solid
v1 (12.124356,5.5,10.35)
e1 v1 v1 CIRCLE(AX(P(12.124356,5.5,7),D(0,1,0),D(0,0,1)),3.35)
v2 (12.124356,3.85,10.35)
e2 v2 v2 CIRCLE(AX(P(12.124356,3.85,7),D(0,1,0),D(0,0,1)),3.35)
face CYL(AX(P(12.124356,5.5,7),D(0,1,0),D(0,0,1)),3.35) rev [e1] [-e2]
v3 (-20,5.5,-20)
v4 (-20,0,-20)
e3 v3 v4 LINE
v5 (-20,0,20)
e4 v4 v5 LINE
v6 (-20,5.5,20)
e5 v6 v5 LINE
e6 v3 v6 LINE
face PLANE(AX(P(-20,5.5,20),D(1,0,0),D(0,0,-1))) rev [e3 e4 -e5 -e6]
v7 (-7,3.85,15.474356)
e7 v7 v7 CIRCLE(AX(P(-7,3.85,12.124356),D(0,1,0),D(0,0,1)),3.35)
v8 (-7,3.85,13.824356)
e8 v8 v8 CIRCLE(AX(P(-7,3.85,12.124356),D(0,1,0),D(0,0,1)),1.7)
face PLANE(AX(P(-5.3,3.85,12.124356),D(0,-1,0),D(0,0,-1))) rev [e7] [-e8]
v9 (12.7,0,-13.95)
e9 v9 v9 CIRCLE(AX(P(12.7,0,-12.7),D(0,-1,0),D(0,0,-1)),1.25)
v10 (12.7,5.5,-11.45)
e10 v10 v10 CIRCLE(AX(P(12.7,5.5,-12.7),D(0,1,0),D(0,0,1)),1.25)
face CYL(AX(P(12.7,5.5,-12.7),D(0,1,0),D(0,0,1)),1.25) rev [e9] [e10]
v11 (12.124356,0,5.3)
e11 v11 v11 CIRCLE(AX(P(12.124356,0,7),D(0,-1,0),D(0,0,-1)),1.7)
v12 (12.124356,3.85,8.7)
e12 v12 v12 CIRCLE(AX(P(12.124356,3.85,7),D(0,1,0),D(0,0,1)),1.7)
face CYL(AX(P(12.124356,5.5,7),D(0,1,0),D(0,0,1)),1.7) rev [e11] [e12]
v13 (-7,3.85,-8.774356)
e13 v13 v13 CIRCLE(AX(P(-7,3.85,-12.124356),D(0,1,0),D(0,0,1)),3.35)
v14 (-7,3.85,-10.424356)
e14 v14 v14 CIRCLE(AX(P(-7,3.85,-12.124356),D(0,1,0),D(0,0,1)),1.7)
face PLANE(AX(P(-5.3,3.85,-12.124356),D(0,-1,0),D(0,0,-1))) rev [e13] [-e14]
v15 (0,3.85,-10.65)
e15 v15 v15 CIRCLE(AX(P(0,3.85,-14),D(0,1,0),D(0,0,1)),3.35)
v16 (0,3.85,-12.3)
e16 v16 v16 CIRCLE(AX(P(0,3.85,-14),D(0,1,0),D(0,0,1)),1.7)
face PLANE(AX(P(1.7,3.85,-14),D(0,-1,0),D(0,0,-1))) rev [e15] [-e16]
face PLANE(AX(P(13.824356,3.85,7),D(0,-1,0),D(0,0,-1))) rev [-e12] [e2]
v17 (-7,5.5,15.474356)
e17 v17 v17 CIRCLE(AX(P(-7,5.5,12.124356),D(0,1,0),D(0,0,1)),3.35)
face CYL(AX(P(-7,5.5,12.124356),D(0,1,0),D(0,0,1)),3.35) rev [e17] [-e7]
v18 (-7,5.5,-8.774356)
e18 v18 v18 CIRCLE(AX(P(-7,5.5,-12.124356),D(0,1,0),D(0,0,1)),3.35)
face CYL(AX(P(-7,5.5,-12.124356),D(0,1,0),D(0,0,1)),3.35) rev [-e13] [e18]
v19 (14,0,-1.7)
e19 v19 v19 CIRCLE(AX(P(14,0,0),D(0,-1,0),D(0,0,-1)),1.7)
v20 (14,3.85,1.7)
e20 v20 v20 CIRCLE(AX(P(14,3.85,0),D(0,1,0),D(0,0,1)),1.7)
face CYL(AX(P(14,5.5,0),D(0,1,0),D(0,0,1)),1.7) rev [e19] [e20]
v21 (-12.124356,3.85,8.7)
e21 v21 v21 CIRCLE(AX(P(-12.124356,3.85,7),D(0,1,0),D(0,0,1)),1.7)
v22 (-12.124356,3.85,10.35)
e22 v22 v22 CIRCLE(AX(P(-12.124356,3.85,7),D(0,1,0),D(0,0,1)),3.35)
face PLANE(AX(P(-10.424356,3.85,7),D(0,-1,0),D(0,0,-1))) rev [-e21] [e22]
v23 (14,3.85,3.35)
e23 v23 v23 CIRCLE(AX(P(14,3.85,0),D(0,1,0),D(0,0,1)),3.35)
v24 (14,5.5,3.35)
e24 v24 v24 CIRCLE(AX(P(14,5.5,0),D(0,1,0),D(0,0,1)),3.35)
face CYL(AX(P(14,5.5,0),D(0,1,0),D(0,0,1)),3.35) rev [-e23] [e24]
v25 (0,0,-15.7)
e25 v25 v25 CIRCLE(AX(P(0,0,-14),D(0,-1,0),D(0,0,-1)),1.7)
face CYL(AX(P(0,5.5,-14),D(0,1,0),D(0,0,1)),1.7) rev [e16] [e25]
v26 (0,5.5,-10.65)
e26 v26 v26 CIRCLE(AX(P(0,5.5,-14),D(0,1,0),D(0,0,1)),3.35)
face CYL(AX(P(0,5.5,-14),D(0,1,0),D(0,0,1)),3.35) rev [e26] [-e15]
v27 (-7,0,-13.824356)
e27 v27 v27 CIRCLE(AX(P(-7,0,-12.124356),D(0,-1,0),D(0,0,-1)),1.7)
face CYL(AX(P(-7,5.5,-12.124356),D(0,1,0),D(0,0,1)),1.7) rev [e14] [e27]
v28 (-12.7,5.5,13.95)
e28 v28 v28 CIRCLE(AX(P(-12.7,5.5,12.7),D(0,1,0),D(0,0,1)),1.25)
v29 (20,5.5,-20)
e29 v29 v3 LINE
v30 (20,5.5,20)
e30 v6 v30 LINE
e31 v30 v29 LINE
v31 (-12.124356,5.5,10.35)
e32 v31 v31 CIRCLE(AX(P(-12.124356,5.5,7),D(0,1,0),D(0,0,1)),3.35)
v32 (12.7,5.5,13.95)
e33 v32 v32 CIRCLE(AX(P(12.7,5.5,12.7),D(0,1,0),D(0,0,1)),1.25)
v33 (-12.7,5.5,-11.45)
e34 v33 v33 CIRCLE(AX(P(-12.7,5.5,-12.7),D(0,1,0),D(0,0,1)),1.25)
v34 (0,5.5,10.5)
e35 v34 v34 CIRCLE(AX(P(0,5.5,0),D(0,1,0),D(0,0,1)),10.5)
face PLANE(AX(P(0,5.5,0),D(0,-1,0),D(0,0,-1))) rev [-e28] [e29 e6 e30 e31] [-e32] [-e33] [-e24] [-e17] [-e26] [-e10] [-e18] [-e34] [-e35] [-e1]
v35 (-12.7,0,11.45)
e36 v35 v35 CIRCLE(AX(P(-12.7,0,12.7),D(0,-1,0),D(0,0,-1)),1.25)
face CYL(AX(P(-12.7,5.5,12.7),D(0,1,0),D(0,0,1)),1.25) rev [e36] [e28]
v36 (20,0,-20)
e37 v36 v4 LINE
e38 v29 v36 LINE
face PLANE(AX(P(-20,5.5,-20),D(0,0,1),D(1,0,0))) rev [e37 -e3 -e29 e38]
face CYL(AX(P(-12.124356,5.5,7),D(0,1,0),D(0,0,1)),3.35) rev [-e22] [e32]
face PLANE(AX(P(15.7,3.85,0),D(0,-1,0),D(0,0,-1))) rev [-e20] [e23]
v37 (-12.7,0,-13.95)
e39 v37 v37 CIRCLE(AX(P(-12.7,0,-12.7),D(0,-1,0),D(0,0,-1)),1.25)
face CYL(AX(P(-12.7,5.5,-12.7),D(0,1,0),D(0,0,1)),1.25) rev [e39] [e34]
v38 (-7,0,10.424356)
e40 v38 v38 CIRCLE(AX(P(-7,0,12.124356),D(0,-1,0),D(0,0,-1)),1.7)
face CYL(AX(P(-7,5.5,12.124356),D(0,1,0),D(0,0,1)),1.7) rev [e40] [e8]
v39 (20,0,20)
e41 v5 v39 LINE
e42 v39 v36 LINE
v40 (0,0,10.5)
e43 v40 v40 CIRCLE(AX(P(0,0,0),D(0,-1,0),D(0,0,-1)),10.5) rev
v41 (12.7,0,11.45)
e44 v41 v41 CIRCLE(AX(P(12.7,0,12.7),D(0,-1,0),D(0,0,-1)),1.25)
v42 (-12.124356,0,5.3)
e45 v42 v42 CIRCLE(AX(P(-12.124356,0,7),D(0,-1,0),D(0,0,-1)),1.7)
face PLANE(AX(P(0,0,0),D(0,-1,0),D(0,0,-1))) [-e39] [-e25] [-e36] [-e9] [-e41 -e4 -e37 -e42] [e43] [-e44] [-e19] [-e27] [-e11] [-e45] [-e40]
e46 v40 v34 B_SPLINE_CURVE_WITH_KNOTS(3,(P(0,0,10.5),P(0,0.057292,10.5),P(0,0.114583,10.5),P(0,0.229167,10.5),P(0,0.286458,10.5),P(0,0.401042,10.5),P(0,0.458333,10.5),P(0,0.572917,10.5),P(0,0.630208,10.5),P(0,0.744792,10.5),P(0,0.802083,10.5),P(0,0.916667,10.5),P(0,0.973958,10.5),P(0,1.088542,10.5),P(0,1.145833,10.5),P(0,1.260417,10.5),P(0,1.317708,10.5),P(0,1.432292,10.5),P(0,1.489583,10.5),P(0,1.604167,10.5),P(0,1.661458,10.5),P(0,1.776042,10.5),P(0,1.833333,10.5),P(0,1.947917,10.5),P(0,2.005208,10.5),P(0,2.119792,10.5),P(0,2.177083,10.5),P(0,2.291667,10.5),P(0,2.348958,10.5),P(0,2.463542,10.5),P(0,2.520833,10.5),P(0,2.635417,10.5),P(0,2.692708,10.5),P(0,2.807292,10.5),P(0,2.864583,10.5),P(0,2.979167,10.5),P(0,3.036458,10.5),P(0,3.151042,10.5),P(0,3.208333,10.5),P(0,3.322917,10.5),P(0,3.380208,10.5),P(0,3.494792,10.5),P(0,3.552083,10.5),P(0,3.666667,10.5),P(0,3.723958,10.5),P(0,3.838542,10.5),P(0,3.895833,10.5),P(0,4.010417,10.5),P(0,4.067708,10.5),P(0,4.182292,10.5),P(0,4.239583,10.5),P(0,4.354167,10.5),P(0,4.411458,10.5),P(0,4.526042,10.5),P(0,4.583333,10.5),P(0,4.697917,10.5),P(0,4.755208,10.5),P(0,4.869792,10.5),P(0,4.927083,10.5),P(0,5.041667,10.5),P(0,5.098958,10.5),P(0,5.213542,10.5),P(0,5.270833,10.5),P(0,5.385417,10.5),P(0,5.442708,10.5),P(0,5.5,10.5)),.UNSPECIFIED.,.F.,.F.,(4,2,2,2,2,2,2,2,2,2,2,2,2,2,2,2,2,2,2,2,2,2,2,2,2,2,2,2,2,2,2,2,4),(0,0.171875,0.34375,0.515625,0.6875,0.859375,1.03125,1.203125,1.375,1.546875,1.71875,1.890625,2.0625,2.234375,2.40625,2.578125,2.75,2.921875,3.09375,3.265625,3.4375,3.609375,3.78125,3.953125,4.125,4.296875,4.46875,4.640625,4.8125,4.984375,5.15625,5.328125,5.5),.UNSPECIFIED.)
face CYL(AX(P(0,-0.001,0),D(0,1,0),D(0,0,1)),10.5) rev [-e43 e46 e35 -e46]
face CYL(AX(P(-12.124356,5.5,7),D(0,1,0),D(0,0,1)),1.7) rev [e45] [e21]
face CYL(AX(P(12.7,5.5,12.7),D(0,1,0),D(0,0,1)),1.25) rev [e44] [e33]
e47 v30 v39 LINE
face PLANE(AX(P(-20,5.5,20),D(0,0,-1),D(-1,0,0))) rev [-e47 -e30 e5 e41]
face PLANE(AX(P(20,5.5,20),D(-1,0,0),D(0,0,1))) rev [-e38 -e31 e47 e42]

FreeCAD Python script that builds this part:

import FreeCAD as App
import Part
import Sketcher

V = App.Vector
Q = App.Units.Quantity


def add_polygon(sketch, points):
    """Adds a closed chain of lines whose ends are joined by coincident constraints."""
    first, n = sketch.GeometryCount, len(points)
    for a, b in zip(points, points[1:] + points[:1]):
        sketch.addGeometry(Part.LineSegment(App.Vector(*a, 0), App.Vector(*b, 0)), False)
    for i in range(n):
        sketch.addConstraint(Sketcher.Constraint("Coincident", first + i, 2, first + (i + 1) % n, 1))

doc = App.newDocument("Part")
params = doc.addObject("Spreadsheet::Sheet", "Params")
for row, (alias, value) in enumerate([
    ("sketch1_width", "40 mm"),
    ("pad1_length", "5.5 mm"),
    ("sketch2_diameter", "21 mm"),
    ("sketch3_diameter", "2.5 mm"),
    ("hole_diameter", "2.5 mm"),
    ("hole_depth", "15.24 mm"),
    ("sketch4_width", "1.65 mm"),
    ("sketch4_width2", "13.59 mm"),
    ("sketch4_height", "3.35 mm"),
    ("groove_angle", "360 deg"),
    ("linearpattern_pitch", "7.246933 mm"),
    ("sketch5_width", "3.35 mm"),
    ("sketch5_width2", "1.65 mm"),
    ("sketch5_height", "13.59 mm"),
    ("groove2_angle", "360 deg"),
    ("sketch6_width", "3.35 mm"),
    ("sketch6_width2", "1.65 mm"),
    ("sketch6_height", "13.59 mm"),
    ("groove3_angle", "360 deg"),
], start=1):
    params.set(f"A{row}", alias)
    params.set(f"B{row}", "=" + value)
    params.setAlias(f"B{row}", alias)

body = doc.addObject("PartDesign::Body", "Body")

# Sketch on XZ plane
sketch1 = body.newObject("Sketcher::SketchObject", "Sketch")
sketch1.AttachmentSupport = (doc.getObject("XZ_Plane"), [""])
sketch1.MapMode = "FlatFace"
add_polygon(sketch1, [(-20, -20), (-20, 20), (20, 20), (20, -20)])  # lines 0-3
sketch1.addConstraint([
    Sketcher.Constraint("Vertical", 0),
    Sketcher.Constraint("Horizontal", 1),
    Sketcher.Constraint("Vertical", 2),
    Sketcher.Constraint("Horizontal", 3),
    Sketcher.Constraint("Symmetric", 0, 2, 2, 2, -1, 1),
    Sketcher.Constraint("Equal", 3, 0),
    Sketcher.Constraint("DistanceX", 1, 1, 1, 2, Q("40 mm")),
])
sketch1.setExpression("Constraints[10]", "Params.sketch1_width")
pad1 = body.newObject("PartDesign::Pad", "Pad")
pad1.Profile = sketch1
pad1.setExpression("Length", "Params.pad1_length")
pad1.Reversed = True

# Sketch on XZ plane
sketch2 = body.newObject("Sketcher::SketchObject", "Sketch001")
sketch2.AttachmentSupport = (doc.getObject("XZ_Plane"), [""])
sketch2.MapMode = "FlatFace"
sketch2.AttachmentOffset = App.Placement(V(0, 0, -5.5), App.Rotation())
sketch2.addGeometry(Part.Circle(V(0, 0, 0), V(0, 0, 1), 10), False)
sketch2.addConstraint([
    Sketcher.Constraint("Coincident", 0, 3, -1, 1),
    Sketcher.Constraint("Diameter", 0, Q("21 mm")),
])
sketch2.setExpression("Constraints[1]", "Params.sketch2_diameter")
pocket1 = body.newObject("PartDesign::Pocket", "Pocket")
pocket1.Profile = sketch2
pocket1.Type = "UpToFirst"
pocket1.Reversed = True

# Sketch on XZ plane
sketch3 = body.newObject("Sketcher::SketchObject", "Sketch002")
sketch3.AttachmentSupport = (doc.getObject("XZ_Plane"), [""])
sketch3.MapMode = "FlatFace"
sketch3.AttachmentOffset = App.Placement(V(0, 0, -5.5), App.Rotation())
sketch3.addGeometry([
    Part.Circle(V(-12.7, 12.7, 0), V(0, 0, 1), 1.2),
    Part.Circle(V(-12.7, -12.7, 0), V(0, 0, 1), 1.2),
    Part.Circle(V(12.7, -12.7, 0), V(0, 0, 1), 1.2),
    Part.Circle(V(12.7, 12.7, 0), V(0, 0, 1), 1.2),
], False)
sketch3.addConstraint([
    Sketcher.Constraint("Equal", 0, 1),
    Sketcher.Constraint("Equal", 1, 2),
    Sketcher.Constraint("Equal", 2, 3),
    Sketcher.Constraint("Symmetric", 0, 3, 2, 3, -1, 1),
    Sketcher.Constraint("Symmetric", 1, 3, 3, 3, -1, 1),
    Sketcher.Constraint("Symmetric", 1, 3, 2, 3, -2),
    Sketcher.Constraint("Diameter", 0, Q("2.5 mm")),
    Sketcher.Constraint("DistanceX", 0, 3, -1, 1, Q("12.7 mm")),
    Sketcher.Constraint("DistanceY", -1, 1, 0, 3, Q("12.7 mm")),
])
sketch3.setExpression("Constraints[6]", "Params.sketch3_diameter")
doc.recompute()
hole = body.newObject("PartDesign::Hole", "Hole")
hole.Profile = sketch3
hole.ThreadType = "None"
hole.setExpression("Diameter", "Params.hole_diameter")
hole.DepthType = "Dimension"
hole.setExpression("Depth", "Params.hole_depth")
hole.DrillPoint = "Angled"
hole.DrillPointAngle = 118
hole.Reversed = True

# Sketch on YZ plane
sketch4 = body.newObject("Sketcher::SketchObject", "Sketch003")
sketch4.AttachmentSupport = (doc.getObject("YZ_Plane"), [""])
sketch4.MapMode = "FlatFace"
sketch4.AttachmentOffset = App.Placement(V(0, 0, -12.124356), App.Rotation())
add_polygon(sketch4, [(-10.8, 7), (5.5, 7), (5.5, 10.3), (3.9, 10.3), (3.9, 8.7), (-9.7, 8.7)])  # lines 0-5
sketch4.addGeometry(Part.LineSegment(V(5.5, 7, 0), V(-10.8, 7, 0)), True)  # axis
sketch4.addConstraint([
    Sketcher.Constraint("Horizontal", 0),
    Sketcher.Constraint("Vertical", 1),
    Sketcher.Constraint("Horizontal", 2),
    Sketcher.Constraint("Vertical", 3),
    Sketcher.Constraint("Horizontal", 4),
    Sketcher.Constraint("Horizontal", 6),
    Sketcher.Constraint("Coincident", 6, 1, 0, 2),
    Sketcher.Constraint("Equal", 0, 6),
    Sketcher.Constraint("Equal", 2, 3),
    Sketcher.Constraint("Angle", 5, Q("-121 deg")),
    Sketcher.Constraint("DistanceY", -1, 1, 0, 2, Q("7 mm")),
    Sketcher.Constraint("DistanceX", 2, 2, 2, 1, Q("1.65 mm")),
    Sketcher.Constraint("DistanceX", 4, 2, 4, 1, Q("13.59 mm")),
    Sketcher.Constraint("DistanceY", 1, 1, 1, 2, Q("3.35 mm")),
    Sketcher.Constraint("DistanceX", -1, 1, 0, 2, Q("5.5 mm")),
])
sketch4.setExpression("Constraints[17]", "Params.sketch4_width")
sketch4.setExpression("Constraints[18]", "Params.sketch4_width2")
sketch4.setExpression("Constraints[19]", "Params.sketch4_height")
groove = body.newObject("PartDesign::Groove", "Groove")
groove.Profile = sketch4
groove.ReferenceAxis = (sketch4, ["Axis0"])
groove.setExpression("Angle", "Params.groove_angle")
doc.recompute()

datumline = body.newObject("PartDesign::Line", "DatumLine")
datumline.Placement = App.Placement(V(0, 0, 0), App.Rotation(V(0, 0, 1), V(0.707106781, 0, 0.707106781)))
linearpattern = body.newObject("PartDesign::LinearPattern", "LinearPattern")
linearpattern.Originals = [groove]
linearpattern.Direction = (datumline, [""])
linearpattern.Mode = "offset"
linearpattern.setExpression("Offset", "Params.linearpattern_pitch")
linearpattern.Occurrences = 2
body.Tip = linearpattern
doc.recompute()

polarpattern = body.newObject("PartDesign::PolarPattern", "PolarPattern")
polarpattern.Originals = [groove]
polarpattern.Axis = (doc.getObject("Y_Axis"), [""])
polarpattern.Angle = 360
polarpattern.Occurrences = 3
body.Tip = polarpattern

# Sketch on an angled plane
sketch5 = body.newObject("Sketcher::SketchObject", "Sketch004")
sketch5.Placement = App.Placement(V(14, 5.5, 0), App.Rotation(V(0.866025404, 0, -0.5), V(0, -1, 0), V(-0.5, 0, -0.866025404), "ZXY"))
add_polygon(sketch5, [(0, 16.3), (0, 0), (3.4, 0), (3.4, 1.7), (1.7, 1.7), (1.7, 15.2)])  # lines 0-5
sketch5.addConstraint([
    Sketcher.Constraint("Vertical", 0),
    Sketcher.Constraint("Horizontal", 1),
    Sketcher.Constraint("Vertical", 2),
    Sketcher.Constraint("Horizontal", 3),
    Sketcher.Constraint("Vertical", 4),
    Sketcher.Constraint("Coincident", 0, 2, -1, 1),
    Sketcher.Constraint("Equal", 3, 2),
    Sketcher.Constraint("Angle", 5, Q("149 deg")),
    Sketcher.Constraint("DistanceX", 1, 1, 1, 2, Q("3.35 mm")),
    Sketcher.Constraint("DistanceX", 3, 2, 3, 1, Q("1.65 mm")),
    Sketcher.Constraint("DistanceY", 4, 1, 4, 2, Q("13.59 mm")),
])
sketch5.setExpression("Constraints[14]", "Params.sketch5_width")
sketch5.setExpression("Constraints[15]", "Params.sketch5_width2")
sketch5.setExpression("Constraints[16]", "Params.sketch5_height")
groove2 = body.newObject("PartDesign::Groove", "Groove001")
groove2.Profile = sketch5
groove2.ReferenceAxis = (sketch5, ["V_Axis"])
groove2.setExpression("Angle", "Params.groove2_angle")

# Sketch on an angled plane
sketch6 = body.newObject("Sketcher::SketchObject", "Sketch005")
sketch6.Placement = App.Placement(V(-7, 5.5, -12.124356), App.Rotation(V(-0.866025404, 0, -0.5), V(0, -1, 0), V(-0.5, 0, 0.866025404), "ZXY"))
add_polygon(sketch6, [(0, 16.3), (0, 0), (3.4, 0), (3.4, 1.7), (1.7, 1.7), (1.7, 15.2)])  # lines 0-5
sketch6.addConstraint([
    Sketcher.Constraint("Vertical", 0),
    Sketcher.Constraint("Horizontal", 1),
    Sketcher.Constraint("Vertical", 2),
    Sketcher.Constraint("Horizontal", 3),
    Sketcher.Constraint("Vertical", 4),
    Sketcher.Constraint("Coincident", 0, 2, -1, 1),
    Sketcher.Constraint("Equal", 3, 2),
    Sketcher.Constraint("Angle", 5, Q("149 deg")),
    Sketcher.Constraint("DistanceX", 1, 1, 1, 2, Q("3.35 mm")),
    Sketcher.Constraint("DistanceX", 3, 2, 3, 1, Q("1.65 mm")),
    Sketcher.Constraint("DistanceY", 4, 1, 4, 2, Q("13.59 mm")),
])
sketch6.setExpression("Constraints[14]", "Params.sketch6_width")
sketch6.setExpression("Constraints[15]", "Params.sketch6_width2")
sketch6.setExpression("Constraints[16]", "Params.sketch6_height")
groove3 = body.newObject("PartDesign::Groove", "Groove002")
groove3.Profile = sketch6
groove3.ReferenceAxis = (sketch6, ["V_Axis"])
groove3.setExpression("Angle", "Params.groove3_angle")

doc.recompute()
